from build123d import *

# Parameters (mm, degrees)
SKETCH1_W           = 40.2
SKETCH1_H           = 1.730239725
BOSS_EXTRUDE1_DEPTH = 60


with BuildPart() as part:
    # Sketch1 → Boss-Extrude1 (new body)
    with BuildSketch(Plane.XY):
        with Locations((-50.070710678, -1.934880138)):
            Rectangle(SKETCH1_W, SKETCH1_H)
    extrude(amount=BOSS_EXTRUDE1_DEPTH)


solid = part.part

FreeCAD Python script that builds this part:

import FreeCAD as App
import Part
import Sketcher
from FreeCAD import Vector
Q = App.Units.Quantity

doc = App.newDocument("Part")
body = doc.addObject("PartDesign::Body", "Body")

# Sketch on XY plane
sketch1 = body.newObject("Sketcher::SketchObject", "Sketch")
sketch1.AttachmentSupport = (doc.getObject("XY_Plane"), [""])
sketch1.MapMode = "FlatFace"
sketch1.addGeometry(Part.LineSegment(Vector(-70.170711, -1.06976, 0), Vector(-70.170711, -2.8, 0)), False)
sketch1.addGeometry(Part.LineSegment(Vector(-70.170711, -2.8, 0), Vector(-29.970711, -2.8, 0)), False)
sketch1.addGeometry(Part.LineSegment(Vector(-29.970711, -2.8, 0), Vector(-29.970711, -1.06976, 0)), False)
sketch1.addGeometry(Part.LineSegment(Vector(-29.970711, -1.06976, 0), Vector(-70.170711, -1.06976, 0)), False)
sketch1.addConstraint(Sketcher.Constraint("Coincident", 0, 2, 1, 1))
sketch1.addConstraint(Sketcher.Constraint("Coincident", 1, 2, 2, 1))
sketch1.addConstraint(Sketcher.Constraint("Coincident", 2, 2, 3, 1))
sketch1.addConstraint(Sketcher.Constraint("Coincident", 3, 2, 0, 1))
sketch1.addConstraint(Sketcher.Constraint("Vertical", 0))
sketch1.addConstraint(Sketcher.Constraint("Horizontal", 1))
sketch1.addConstraint(Sketcher.Constraint("Vertical", 2))
sketch1.addConstraint(Sketcher.Constraint("Horizontal", 3))
sketch1.addConstraint(Sketcher.Constraint("DistanceX", 1, 1, 1, 2, Q("40.2 mm")))
sketch1.addConstraint(Sketcher.Constraint("DistanceY", 0, 2, -1, 1, Q("2.8 mm")))
sketch1.addConstraint(Sketcher.Constraint("DistanceY", 0, 2, 0, 1, Q("1.73024 mm")))
sketch1.addConstraint(Sketcher.Constraint("DistanceX", 0, 2, -1, 1, Q("70.170711 mm")))
pad1 = body.newObject("PartDesign::Pad", "Pad")
pad1.Profile = sketch1
pad1.Length = 60

doc.recompute()
